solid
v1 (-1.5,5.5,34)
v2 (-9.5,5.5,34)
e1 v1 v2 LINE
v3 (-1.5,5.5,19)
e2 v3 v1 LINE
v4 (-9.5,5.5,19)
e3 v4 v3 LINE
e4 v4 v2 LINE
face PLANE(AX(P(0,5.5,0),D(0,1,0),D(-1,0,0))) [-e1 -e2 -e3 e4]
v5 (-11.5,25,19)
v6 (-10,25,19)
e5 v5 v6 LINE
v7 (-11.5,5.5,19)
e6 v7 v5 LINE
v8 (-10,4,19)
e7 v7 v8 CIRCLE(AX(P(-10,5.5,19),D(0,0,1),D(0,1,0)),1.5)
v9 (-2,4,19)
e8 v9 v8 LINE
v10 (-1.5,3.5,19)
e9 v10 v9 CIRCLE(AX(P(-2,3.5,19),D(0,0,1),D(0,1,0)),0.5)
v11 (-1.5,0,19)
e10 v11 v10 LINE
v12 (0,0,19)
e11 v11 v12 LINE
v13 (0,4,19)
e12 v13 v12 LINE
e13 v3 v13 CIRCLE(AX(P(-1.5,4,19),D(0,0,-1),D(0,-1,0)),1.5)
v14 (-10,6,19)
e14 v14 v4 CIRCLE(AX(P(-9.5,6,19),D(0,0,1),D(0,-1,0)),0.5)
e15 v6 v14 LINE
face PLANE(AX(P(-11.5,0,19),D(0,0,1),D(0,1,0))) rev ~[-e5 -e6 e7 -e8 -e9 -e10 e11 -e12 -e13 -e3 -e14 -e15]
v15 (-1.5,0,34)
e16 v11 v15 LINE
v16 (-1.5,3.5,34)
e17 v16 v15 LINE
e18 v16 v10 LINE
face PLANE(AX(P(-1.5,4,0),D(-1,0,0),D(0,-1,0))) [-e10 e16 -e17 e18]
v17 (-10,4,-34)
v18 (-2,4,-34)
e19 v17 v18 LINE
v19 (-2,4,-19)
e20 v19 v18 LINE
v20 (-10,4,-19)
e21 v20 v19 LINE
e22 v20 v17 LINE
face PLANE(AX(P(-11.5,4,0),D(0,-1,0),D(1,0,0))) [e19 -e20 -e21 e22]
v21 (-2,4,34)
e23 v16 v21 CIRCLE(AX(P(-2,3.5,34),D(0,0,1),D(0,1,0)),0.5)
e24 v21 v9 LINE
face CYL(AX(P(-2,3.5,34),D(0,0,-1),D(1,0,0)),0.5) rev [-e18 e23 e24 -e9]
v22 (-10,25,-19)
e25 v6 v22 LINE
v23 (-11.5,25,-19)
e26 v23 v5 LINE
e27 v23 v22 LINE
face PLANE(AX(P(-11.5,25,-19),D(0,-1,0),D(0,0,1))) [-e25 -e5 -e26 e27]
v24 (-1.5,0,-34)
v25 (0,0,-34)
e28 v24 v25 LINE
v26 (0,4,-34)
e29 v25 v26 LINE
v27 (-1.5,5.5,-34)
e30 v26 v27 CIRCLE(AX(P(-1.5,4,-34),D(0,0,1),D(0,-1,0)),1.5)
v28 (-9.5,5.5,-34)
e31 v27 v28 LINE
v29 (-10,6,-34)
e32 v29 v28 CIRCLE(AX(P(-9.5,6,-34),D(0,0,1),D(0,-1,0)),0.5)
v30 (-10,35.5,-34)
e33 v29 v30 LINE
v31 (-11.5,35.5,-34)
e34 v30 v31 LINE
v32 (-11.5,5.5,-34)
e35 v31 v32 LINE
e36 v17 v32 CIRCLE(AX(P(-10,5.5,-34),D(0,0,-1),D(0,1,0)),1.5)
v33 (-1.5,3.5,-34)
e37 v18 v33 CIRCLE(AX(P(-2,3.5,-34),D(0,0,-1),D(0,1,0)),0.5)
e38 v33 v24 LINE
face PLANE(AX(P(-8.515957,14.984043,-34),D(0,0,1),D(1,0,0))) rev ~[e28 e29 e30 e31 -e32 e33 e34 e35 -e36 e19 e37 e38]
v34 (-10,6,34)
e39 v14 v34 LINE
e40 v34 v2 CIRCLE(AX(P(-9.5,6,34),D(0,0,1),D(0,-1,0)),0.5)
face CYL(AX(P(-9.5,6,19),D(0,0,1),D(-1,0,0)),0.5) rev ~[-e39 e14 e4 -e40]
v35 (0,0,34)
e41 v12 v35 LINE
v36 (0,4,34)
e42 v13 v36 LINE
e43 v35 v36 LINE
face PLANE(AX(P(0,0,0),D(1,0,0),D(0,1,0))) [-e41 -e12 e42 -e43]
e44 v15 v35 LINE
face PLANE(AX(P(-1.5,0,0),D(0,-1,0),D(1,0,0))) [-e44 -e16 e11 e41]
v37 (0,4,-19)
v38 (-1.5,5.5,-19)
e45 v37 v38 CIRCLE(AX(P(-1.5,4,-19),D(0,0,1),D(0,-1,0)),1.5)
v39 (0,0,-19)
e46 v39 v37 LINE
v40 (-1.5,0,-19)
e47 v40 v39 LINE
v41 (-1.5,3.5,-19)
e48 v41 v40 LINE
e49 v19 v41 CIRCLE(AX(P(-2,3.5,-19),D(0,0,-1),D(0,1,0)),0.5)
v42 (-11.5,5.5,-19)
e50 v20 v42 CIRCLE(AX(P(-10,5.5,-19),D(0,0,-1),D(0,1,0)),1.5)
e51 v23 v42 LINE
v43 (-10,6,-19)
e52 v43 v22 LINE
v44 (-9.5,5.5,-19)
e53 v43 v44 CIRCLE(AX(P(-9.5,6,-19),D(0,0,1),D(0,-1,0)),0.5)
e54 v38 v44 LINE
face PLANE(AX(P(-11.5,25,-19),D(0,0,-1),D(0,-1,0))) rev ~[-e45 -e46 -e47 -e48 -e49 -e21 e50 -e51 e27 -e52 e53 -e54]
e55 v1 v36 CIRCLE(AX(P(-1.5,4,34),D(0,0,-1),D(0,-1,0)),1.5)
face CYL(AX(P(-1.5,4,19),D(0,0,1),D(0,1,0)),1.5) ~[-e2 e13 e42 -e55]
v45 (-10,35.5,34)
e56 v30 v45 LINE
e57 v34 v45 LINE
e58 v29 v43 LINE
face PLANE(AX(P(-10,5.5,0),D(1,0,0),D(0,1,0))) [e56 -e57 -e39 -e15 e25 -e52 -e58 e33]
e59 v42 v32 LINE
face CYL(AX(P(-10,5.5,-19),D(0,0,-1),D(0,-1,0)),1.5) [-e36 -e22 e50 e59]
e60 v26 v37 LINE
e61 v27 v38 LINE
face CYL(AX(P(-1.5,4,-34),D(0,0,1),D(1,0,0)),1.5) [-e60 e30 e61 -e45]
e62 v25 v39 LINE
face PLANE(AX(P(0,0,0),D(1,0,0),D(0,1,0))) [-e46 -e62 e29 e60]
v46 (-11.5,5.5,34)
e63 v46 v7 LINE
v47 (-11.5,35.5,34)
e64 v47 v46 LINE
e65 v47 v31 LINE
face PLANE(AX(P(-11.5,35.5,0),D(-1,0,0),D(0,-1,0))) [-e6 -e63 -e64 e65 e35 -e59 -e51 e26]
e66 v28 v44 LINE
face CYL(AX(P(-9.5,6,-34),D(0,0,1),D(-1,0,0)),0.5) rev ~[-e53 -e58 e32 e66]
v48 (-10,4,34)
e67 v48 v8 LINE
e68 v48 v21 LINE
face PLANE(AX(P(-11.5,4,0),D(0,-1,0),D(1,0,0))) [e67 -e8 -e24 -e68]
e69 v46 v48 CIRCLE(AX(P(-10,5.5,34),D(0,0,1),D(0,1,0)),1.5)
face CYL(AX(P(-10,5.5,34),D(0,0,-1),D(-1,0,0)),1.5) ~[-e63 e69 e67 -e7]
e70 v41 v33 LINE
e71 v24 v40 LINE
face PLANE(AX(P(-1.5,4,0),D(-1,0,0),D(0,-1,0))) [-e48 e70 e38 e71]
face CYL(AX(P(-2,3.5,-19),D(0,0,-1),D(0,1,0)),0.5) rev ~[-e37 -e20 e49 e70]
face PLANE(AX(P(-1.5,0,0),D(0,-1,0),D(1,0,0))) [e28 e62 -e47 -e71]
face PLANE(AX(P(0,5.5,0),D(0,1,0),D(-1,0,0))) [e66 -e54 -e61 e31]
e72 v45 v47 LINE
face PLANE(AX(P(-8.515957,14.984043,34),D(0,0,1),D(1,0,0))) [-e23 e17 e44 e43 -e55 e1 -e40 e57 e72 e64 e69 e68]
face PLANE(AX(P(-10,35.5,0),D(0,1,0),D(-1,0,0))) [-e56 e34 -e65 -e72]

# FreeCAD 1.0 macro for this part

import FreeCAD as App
import Part
import Sketcher
Q = App.Units.Quantity


def edges_at(feature, points):
    """Names of the edges that pass closest to the given points."""
    edges = feature.Shape.Edges
    near = lambda p: min(range(len(edges)), key=lambda i: edges[i].distToShape(Part.Vertex(*p))[0])
    return sorted({f"Edge{near(p) + 1}" for p in points})


def add_polygon(sketch, points):
    """Adds a closed chain of lines whose ends are joined by coincident constraints."""
    first, n = sketch.GeometryCount, len(points)
    for a, b in zip(points, points[1:] + points[:1]):
        sketch.addGeometry(Part.LineSegment(App.Vector(*a, 0), App.Vector(*b, 0)), False)
    for i in range(n):
        sketch.addConstraint(Sketcher.Constraint("Coincident", first + i, 2, first + (i + 1) % n, 1))

doc = App.newDocument("Part")
body = doc.addObject("PartDesign::Body", "Body")

# Sketch on XY plane
sketch1 = doc.addObject("Sketcher::SketchObject", "Sketch")
body.addObject(sketch1)
sketch1.AttachmentSupport = (doc.XY_Plane, [""])
sketch1.MapMode = "FlatFace"
add_polygon(sketch1, [(-1.5, 4), (-1.5, 0), (0, 0), (0, 5.5), (-10, 5.5), (-10, 35.5), (-11.5, 35.5), (-11.5, 4)])  # lines 0-7
sketch1.addConstraint(Sketcher.Constraint("Vertical", 0))
sketch1.addConstraint(Sketcher.Constraint("Horizontal", 1))
sketch1.addConstraint(Sketcher.Constraint("Vertical", 2))
sketch1.addConstraint(Sketcher.Constraint("Horizontal", 3))
sketch1.addConstraint(Sketcher.Constraint("Vertical", 4))
sketch1.addConstraint(Sketcher.Constraint("Horizontal", 5))
sketch1.addConstraint(Sketcher.Constraint("Vertical", 6))
sketch1.addConstraint(Sketcher.Constraint("Horizontal", 7))
sketch1.addConstraint(Sketcher.Constraint("Coincident", 1, 2, -1, 1))
sketch1.addConstraint(Sketcher.Constraint("Equal", 1, 5))
sketch1.addConstraint(Sketcher.Constraint("DistanceX", 3, 2, 3, 1, Q("10 mm")))
sketch1.addConstraint(Sketcher.Constraint("DistanceY", 0, 2, 0, 1, Q("4 mm")))
sketch1.addConstraint(Sketcher.Constraint("DistanceY", 4, 1, 4, 2, Q("30 mm")))
sketch1.addConstraint(Sketcher.Constraint("DistanceX", 1, 1, 1, 2, Q("1.5 mm")))
sketch1.addConstraint(Sketcher.Constraint("DistanceY", 2, 1, 2, 2, Q("5.5 mm")))
pad1 = doc.addObject("PartDesign::Pad", "Pad")
body.addObject(pad1)
pad1.Profile = sketch1
pad1.Length = 68
pad1.Midplane = True

# Sketch on YZ plane
sketch2 = doc.addObject("Sketcher::SketchObject", "Sketch001")
body.addObject(sketch2)
sketch2.AttachmentSupport = (doc.YZ_Plane, [""])
sketch2.MapMode = "FlatFace"
sketch2.AttachmentOffset = App.Placement(App.Vector(0, 0, -11.5), App.Rotation())
add_polygon(sketch2, [(0, -19), (0, 19), (25, 19), (25, -19)])  # lines 0-3
sketch2.addConstraint(Sketcher.Constraint("Vertical", 0))
sketch2.addConstraint(Sketcher.Constraint("Horizontal", 1))
sketch2.addConstraint(Sketcher.Constraint("Vertical", 2))
sketch2.addConstraint(Sketcher.Constraint("Horizontal", 3))
sketch2.addConstraint(Sketcher.Constraint("Symmetric", 0, 2, 3, 2, -1, 1))
sketch2.addConstraint(Sketcher.Constraint("DistanceX", 1, 1, 1, 2, Q("25 mm")))
sketch2.addConstraint(Sketcher.Constraint("DistanceY", 0, 1, 0, 2, Q("38 mm")))
pocket1 = doc.addObject("PartDesign::Pocket", "Pocket")
body.addObject(pocket1)
pocket1.Profile = sketch2
pocket1.Length = 50
pocket1.Reversed = True
doc.recompute()

fillet = doc.addObject("PartDesign::Fillet", "Fillet")
body.addObject(fillet)
fillet.Base = (pocket1, edges_at(pocket1, [
    (0, 5.5, -26.5),
    (0, 5.5, 26.5),
    (-11.5, 4, -26.5),
    (-11.5, 4, 26.5),
]))
fillet.Radius = 1.5
doc.recompute()

fillet2 = doc.addObject("PartDesign::Fillet", "Fillet001")
body.addObject(fillet2)
fillet2.Base = (fillet, edges_at(fillet, [
    (-10, 5.5, -26.5),
    (-10, 5.5, 26.5),
    (-1.5, 4, -26.5),
    (-1.5, 4, 26.5),
]))
fillet2.Radius = 0.5

doc.recompute()
